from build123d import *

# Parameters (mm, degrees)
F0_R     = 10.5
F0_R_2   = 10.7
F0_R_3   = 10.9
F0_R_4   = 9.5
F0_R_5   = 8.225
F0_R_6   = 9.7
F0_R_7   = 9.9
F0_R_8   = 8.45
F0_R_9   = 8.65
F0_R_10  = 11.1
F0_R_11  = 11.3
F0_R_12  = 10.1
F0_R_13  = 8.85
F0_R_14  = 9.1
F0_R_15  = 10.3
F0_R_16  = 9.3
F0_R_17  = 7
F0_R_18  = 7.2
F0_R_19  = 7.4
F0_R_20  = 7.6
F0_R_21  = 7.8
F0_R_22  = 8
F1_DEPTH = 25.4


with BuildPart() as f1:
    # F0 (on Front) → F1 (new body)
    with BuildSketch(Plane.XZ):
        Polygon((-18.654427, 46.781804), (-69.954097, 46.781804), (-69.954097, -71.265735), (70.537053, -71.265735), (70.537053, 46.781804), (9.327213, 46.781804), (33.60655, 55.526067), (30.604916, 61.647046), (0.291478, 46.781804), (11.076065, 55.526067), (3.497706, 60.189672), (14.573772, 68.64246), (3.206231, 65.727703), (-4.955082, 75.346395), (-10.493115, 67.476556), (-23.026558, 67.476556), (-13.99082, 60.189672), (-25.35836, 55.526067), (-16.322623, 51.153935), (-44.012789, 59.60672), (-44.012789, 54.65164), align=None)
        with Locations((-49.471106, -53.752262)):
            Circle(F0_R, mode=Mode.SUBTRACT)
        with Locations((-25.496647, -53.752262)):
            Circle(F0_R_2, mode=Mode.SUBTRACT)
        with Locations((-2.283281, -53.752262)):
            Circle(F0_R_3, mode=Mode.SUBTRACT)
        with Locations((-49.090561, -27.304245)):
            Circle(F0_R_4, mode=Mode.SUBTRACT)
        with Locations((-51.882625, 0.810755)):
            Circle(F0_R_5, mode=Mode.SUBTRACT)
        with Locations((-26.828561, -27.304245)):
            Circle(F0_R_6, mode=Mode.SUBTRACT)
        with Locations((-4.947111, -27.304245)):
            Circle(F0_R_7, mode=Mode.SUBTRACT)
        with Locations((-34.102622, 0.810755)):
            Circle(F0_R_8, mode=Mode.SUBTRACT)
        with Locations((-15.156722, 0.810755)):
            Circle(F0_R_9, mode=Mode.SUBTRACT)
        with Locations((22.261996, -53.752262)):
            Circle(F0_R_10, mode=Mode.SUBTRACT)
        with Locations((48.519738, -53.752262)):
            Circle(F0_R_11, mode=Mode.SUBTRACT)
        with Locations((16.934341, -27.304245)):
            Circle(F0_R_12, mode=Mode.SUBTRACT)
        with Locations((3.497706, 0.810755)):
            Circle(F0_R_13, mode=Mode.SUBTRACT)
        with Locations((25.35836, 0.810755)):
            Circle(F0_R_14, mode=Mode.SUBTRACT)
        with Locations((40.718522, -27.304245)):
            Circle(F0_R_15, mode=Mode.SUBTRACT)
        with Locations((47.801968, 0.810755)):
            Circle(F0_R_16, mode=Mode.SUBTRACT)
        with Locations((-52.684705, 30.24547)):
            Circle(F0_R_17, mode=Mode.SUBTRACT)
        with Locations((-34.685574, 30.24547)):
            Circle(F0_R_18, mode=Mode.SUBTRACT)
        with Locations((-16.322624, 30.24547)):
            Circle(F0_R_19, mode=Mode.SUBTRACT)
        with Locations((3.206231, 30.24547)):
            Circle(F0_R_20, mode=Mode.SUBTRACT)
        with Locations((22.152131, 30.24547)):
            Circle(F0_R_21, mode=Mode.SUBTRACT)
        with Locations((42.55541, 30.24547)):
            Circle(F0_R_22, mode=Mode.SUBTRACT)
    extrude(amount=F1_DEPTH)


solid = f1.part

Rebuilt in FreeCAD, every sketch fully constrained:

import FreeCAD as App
import Part
import Sketcher
Q = App.Units.Quantity

doc = App.newDocument("Part")
body = doc.addObject("PartDesign::Body", "Body")

sketch1 = doc.addObject("Sketcher::SketchObject", "Sketch")
body.addObject(sketch1)
sketch1.AttachmentSupport = (doc.XZ_Plane, [""])
sketch1.MapMode = "FlatFace"
sketch1.addGeometry([
    Part.LineSegment(App.Vector(-18.654427, 46.781804, 0), App.Vector(-69.954097, 46.781804, 0)),
    Part.LineSegment(App.Vector(-69.954097, 46.781804, 0), App.Vector(-69.954097, -71.265735, 0)),
    Part.LineSegment(App.Vector(-69.954097, -71.265735, 0), App.Vector(70.537053, -71.265735, 0)),
    Part.LineSegment(App.Vector(70.537053, -71.265735, 0), App.Vector(70.537053, 46.781804, 0)),
    Part.LineSegment(App.Vector(70.537053, 46.781804, 0), App.Vector(9.327213, 46.781804, 0)),
    Part.LineSegment(App.Vector(9.327213, 46.781804, 0), App.Vector(33.60655, 55.526067, 0)),
    Part.LineSegment(App.Vector(33.60655, 55.526067, 0), App.Vector(30.604916, 61.647046, 0)),
    Part.LineSegment(App.Vector(30.604916, 61.647046, 0), App.Vector(0.291478, 46.781804, 0)),
    Part.LineSegment(App.Vector(0.291478, 46.781804, 0), App.Vector(11.076065, 55.526067, 0)),
    Part.LineSegment(App.Vector(11.076065, 55.526067, 0), App.Vector(3.497706, 60.189672, 0)),
    Part.LineSegment(App.Vector(3.497706, 60.189672, 0), App.Vector(14.573772, 68.64246, 0)),
    Part.LineSegment(App.Vector(14.573772, 68.64246, 0), App.Vector(3.206231, 65.727703, 0)),
    Part.LineSegment(App.Vector(3.206231, 65.727703, 0), App.Vector(-4.955082, 75.346395, 0)),
    Part.LineSegment(App.Vector(-4.955082, 75.346395, 0), App.Vector(-10.493115, 67.476556, 0)),
    Part.LineSegment(App.Vector(-10.493115, 67.476556, 0), App.Vector(-23.026558, 67.476556, 0)),
    Part.LineSegment(App.Vector(-23.026558, 67.476556, 0), App.Vector(-13.99082, 60.189672, 0)),
    Part.LineSegment(App.Vector(-13.99082, 60.189672, 0), App.Vector(-25.35836, 55.526067, 0)),
    Part.LineSegment(App.Vector(-25.35836, 55.526067, 0), App.Vector(-16.322623, 51.153935, 0)),
    Part.LineSegment(App.Vector(-16.322623, 51.153935, 0), App.Vector(-44.012789, 59.60672, 0)),
    Part.LineSegment(App.Vector(-44.012789, 59.60672, 0), App.Vector(-44.012789, 54.65164, 0)),
    Part.LineSegment(App.Vector(-44.012789, 54.65164, 0), App.Vector(-18.654427, 46.781804, 0)),
    Part.Circle(App.Vector(-49.471106, -53.752262, 0), App.Vector(0, 0, 1), 10.5),
    Part.Circle(App.Vector(-25.496647, -53.752262, 0), App.Vector(0, 0, 1), 10.7),
    Part.Circle(App.Vector(-2.283281, -53.752262, 0), App.Vector(0, 0, 1), 10.9),
    Part.Circle(App.Vector(-49.090561, -27.304245, 0), App.Vector(0, 0, 1), 9.5),
    Part.Circle(App.Vector(-26.828561, -27.304245, 0), App.Vector(0, 0, 1), 9.7),
    Part.Circle(App.Vector(-4.947111, -27.304245, 0), App.Vector(0, 0, 1), 9.9),
    Part.Circle(App.Vector(22.261996, -53.752262, 0), App.Vector(0, 0, 1), 11.1),
    Part.Circle(App.Vector(48.519738, -53.752262, 0), App.Vector(0, 0, 1), 11.3),
    Part.Circle(App.Vector(16.934341, -27.304245, 0), App.Vector(0, 0, 1), 10.1),
    Part.Circle(App.Vector(40.718522, -27.304245, 0), App.Vector(0, 0, 1), 10.3),
    Part.Circle(App.Vector(-51.882625, 0.810755, 0), App.Vector(0, 0, 1), 8.225),
    Part.Circle(App.Vector(-34.102622, 0.810755, 0), App.Vector(0, 0, 1), 8.45),
    Part.Circle(App.Vector(-15.156722, 0.810755, 0), App.Vector(0, 0, 1), 8.65),
    Part.Circle(App.Vector(-52.684705, 30.24547, 0), App.Vector(0, 0, 1), 7),
    Part.Circle(App.Vector(-34.685574, 30.24547, 0), App.Vector(0, 0, 1), 7.2),
    Part.Circle(App.Vector(-16.322624, 30.24547, 0), App.Vector(0, 0, 1), 7.4),
    Part.Circle(App.Vector(3.497706, 0.810755, 0), App.Vector(0, 0, 1), 8.85),
    Part.Circle(App.Vector(25.35836, 0.810755, 0), App.Vector(0, 0, 1), 9.1),
    Part.Circle(App.Vector(47.801968, 0.810755, 0), App.Vector(0, 0, 1), 9.3),
    Part.Circle(App.Vector(3.206231, 30.24547, 0), App.Vector(0, 0, 1), 7.6),
    Part.Circle(App.Vector(22.152131, 30.24547, 0), App.Vector(0, 0, 1), 7.8),
    Part.Circle(App.Vector(42.55541, 30.24547, 0), App.Vector(0, 0, 1), 8),
], False)
sketch1.addConstraint([
    Sketcher.Constraint("Coincident", 0, 2, 1, 1),
    Sketcher.Constraint("Coincident", 1, 2, 2, 1),
    Sketcher.Constraint("Coincident", 2, 2, 3, 1),
    Sketcher.Constraint("Coincident", 3, 2, 4, 1),
    Sketcher.Constraint("Coincident", 4, 2, 5, 1),
    Sketcher.Constraint("Coincident", 5, 2, 6, 1),
    Sketcher.Constraint("Coincident", 6, 2, 7, 1),
    Sketcher.Constraint("Coincident", 7, 2, 8, 1),
    Sketcher.Constraint("Coincident", 8, 2, 9, 1),
    Sketcher.Constraint("Coincident", 9, 2, 10, 1),
    Sketcher.Constraint("Coincident", 10, 2, 11, 1),
    Sketcher.Constraint("Coincident", 11, 2, 12, 1),
    Sketcher.Constraint("Coincident", 12, 2, 13, 1),
    Sketcher.Constraint("Coincident", 13, 2, 14, 1),
    Sketcher.Constraint("Coincident", 14, 2, 15, 1),
    Sketcher.Constraint("Coincident", 15, 2, 16, 1),
    Sketcher.Constraint("Coincident", 16, 2, 17, 1),
    Sketcher.Constraint("Coincident", 17, 2, 18, 1),
    Sketcher.Constraint("Coincident", 18, 2, 19, 1),
    Sketcher.Constraint("Coincident", 19, 2, 20, 1),
    Sketcher.Constraint("Coincident", 20, 2, 0, 1),
    Sketcher.Constraint("Horizontal", 0),
    Sketcher.Constraint("Vertical", 1),
    Sketcher.Constraint("Horizontal", 2),
    Sketcher.Constraint("Vertical", 3),
    Sketcher.Constraint("Horizontal", 4),
    Sketcher.Constraint("Horizontal", 14),
    Sketcher.Constraint("Vertical", 19),
    Sketcher.Constraint("Perpendicular", 6, 7),
    Sketcher.Constraint("Horizontal", 21, 3, 22, 3),
    Sketcher.Constraint("Horizontal", 22, 3, 23, 3),
    Sketcher.Constraint("Horizontal", 24, 3, 25, 3),
    Sketcher.Constraint("Horizontal", 25, 3, 26, 3),
    Sketcher.Constraint("Horizontal", 23, 3, 27, 3),
    Sketcher.Constraint("Horizontal", 27, 3, 28, 3),
    Sketcher.Constraint("Horizontal", 26, 3, 29, 3),
    Sketcher.Constraint("Horizontal", 29, 3, 30, 3),
    Sketcher.Constraint("Horizontal", 31, 3, 32, 3),
    Sketcher.Constraint("Horizontal", 32, 3, 33, 3),
    Sketcher.Constraint("Horizontal", 34, 3, 35, 3),
    Sketcher.Constraint("Horizontal", 35, 3, 36, 3),
    Sketcher.Constraint("Horizontal", 33, 3, 37, 3),
    Sketcher.Constraint("Horizontal", 37, 3, 38, 3),
    Sketcher.Constraint("Horizontal", 38, 3, 39, 3),
    Sketcher.Constraint("Horizontal", 36, 3, 40, 3),
    Sketcher.Constraint("Horizontal", 40, 3, 41, 3),
    Sketcher.Constraint("Horizontal", 41, 3, 42, 3),
    Sketcher.Constraint("Horizontal", 0, 2, 3, 2),
    Sketcher.Constraint("Horizontal", 4, 2, 7, 2),
    Sketcher.Constraint("Horizontal", 5, 2, 8, 2),
    Sketcher.Constraint("Horizontal", 9, 2, 15, 2),
    Sketcher.Constraint("Horizontal", 8, 2, 16, 2),
    Sketcher.Constraint("Vertical", 37, 3, 9, 2),
    Sketcher.Constraint("Vertical", 40, 3, 11, 2),
    Sketcher.Constraint("Vertical", 36, 3, 17, 2),
    Sketcher.Constraint("Diameter", 21, Q("21 mm")),
    Sketcher.Constraint("Diameter", 24, Q("19 mm")),
    Sketcher.Constraint("Diameter", 34, Q("14 mm")),
    Sketcher.Constraint("Diameter", 42, Q("16 mm")),
    Sketcher.Constraint("Diameter", 22, Q("21.4 mm")),
    Sketcher.Constraint("Diameter", 23, Q("21.8 mm")),
    Sketcher.Constraint("Diameter", 25, Q("19.4 mm")),
    Sketcher.Constraint("Diameter", 26, Q("19.8 mm")),
    Sketcher.Constraint("Diameter", 27, Q("22.2 mm")),
    Sketcher.Constraint("Diameter", 28, Q("22.6 mm")),
    Sketcher.Constraint("Diameter", 29, Q("20.2 mm")),
    Sketcher.Constraint("Diameter", 30, Q("20.6 mm")),
    Sketcher.Constraint("Diameter", 32, Q("16.9 mm")),
    Sketcher.Constraint("Diameter", 33, Q("17.3 mm")),
    Sketcher.Constraint("Diameter", 35, Q("14.4 mm")),
    Sketcher.Constraint("Diameter", 36, Q("14.8 mm")),
    Sketcher.Constraint("Diameter", 37, Q("17.7 mm")),
    Sketcher.Constraint("Diameter", 38, Q("18.2 mm")),
    Sketcher.Constraint("Diameter", 39, Q("18.6 mm")),
    Sketcher.Constraint("Diameter", 40, Q("15.2 mm")),
    Sketcher.Constraint("Diameter", 41, Q("15.6 mm")),
    Sketcher.Constraint("Diameter", 31, Q("16.45 mm")),
    Sketcher.Constraint("DistanceX", 31, 3, 36, 3, Q("35.560001 mm")),
    Sketcher.Constraint("DistanceX", 24, 3, 25, 3, Q("22.262 mm")),
    Sketcher.Constraint("DistanceY", 24, 3, 31, 3, Q("28.115 mm")),
    Sketcher.Constraint("DistanceX", 0, 2, 0, 1, Q("51.29967 mm")),
    Sketcher.Constraint("DistanceX", 2, 1, 2, 2, Q("140.49115 mm")),
    Sketcher.Constraint("DistanceX", 4, 2, 4, 1, Q("61.20984 mm")),
    Sketcher.Constraint("DistanceY", 1, 2, 1, 1, Q("118.047539 mm")),
    Sketcher.Constraint("DistanceY", 19, 2, 19, 1, Q("4.95508 mm")),
    Sketcher.Constraint("DistanceX", 25, 3, 28, 3, Q("75.348299 mm")),
    Sketcher.Constraint("DistanceX", 25, 3, 29, 3, Q("43.762902 mm")),
    Sketcher.Constraint("DistanceX", 32, 3, 33, 3, Q("18.9459 mm")),
    Sketcher.Constraint("DistanceX", 40, 3, 41, 3, Q("18.9459 mm")),
    Sketcher.Constraint("DistanceY", 7, 2, 11, 2, Q("18.945899 mm")),
    Sketcher.Constraint("DistanceX", 16, 2, 14, 2, Q("2.331802 mm")),
    Sketcher.Constraint("DistanceX", 17, 2, 7, 2, Q("16.614101 mm")),
    Sketcher.Constraint("Distance", 7, Q("33.762108 mm")),
    Sketcher.Constraint("Distance", 11, Q("11.73528 mm")),
    Sketcher.Constraint("DistanceX", 14, 2, 14, 1, Q("12.533443 mm")),
    Sketcher.Constraint("DistanceX", 23, 3, -1, 1, Q("2.283281 mm")),
    Sketcher.Constraint("DistanceX", 24, 3, -1, 1, Q("49.090561 mm")),
    Sketcher.Constraint("DistanceX", 26, 3, -1, 1, Q("4.947111 mm")),
    Sketcher.Constraint("DistanceX", 32, 3, -1, 1, Q("34.102622 mm")),
    Sketcher.Constraint("DistanceY", -1, 1, 34, 3, Q("30.24547 mm")),
    Sketcher.Constraint("DistanceX", -1, 1, 38, 3, Q("25.35836 mm")),
    Sketcher.Constraint("DistanceX", -1, 1, 39, 3, Q("47.801968 mm")),
    Sketcher.Constraint("DistanceX", -1, 1, 40, 3, Q("3.206231 mm")),
    Sketcher.Constraint("DistanceX", -1, 1, 42, 3, Q("42.55541 mm")),
    Sketcher.Constraint("DistanceX", -1, 1, 5, 2, Q("33.60655 mm")),
    Sketcher.Constraint("DistanceY", -1, 1, 10, 2, Q("68.64246 mm")),
    Sketcher.Constraint("DistanceX", 14, 2, -1, 1, Q("23.026558 mm")),
    Sketcher.Constraint("DistanceX", 15, 2, -1, 1, Q("13.99082 mm")),
    Sketcher.Constraint("DistanceX", 18, 2, -1, 1, Q("44.012789 mm")),
    Sketcher.Constraint("DistanceY", -1, 1, 18, 2, Q("59.60672 mm")),
    Sketcher.Constraint("DistanceX", 21, 3, 22, 3, Q("23.974459 mm")),
    Sketcher.Constraint("DistanceX", 27, 3, 28, 3, Q("26.257742 mm")),
    Sketcher.Constraint("DistanceX", 29, 3, 30, 3, Q("23.784181 mm")),
    Sketcher.Constraint("DistanceX", 31, 3, 21, 3, Q("2.411519 mm")),
    Sketcher.Constraint("DistanceX", 34, 3, 31, 3, Q("0.80208 mm")),
    Sketcher.Constraint("DistanceX", 34, 3, 35, 3, Q("17.999131 mm")),
    Sketcher.Constraint("DistanceX", 36, 3, 37, 3, Q("19.82033 mm")),
    Sketcher.Constraint("DistanceY", 31, 3, 0, 2, Q("45.971049 mm")),
    Sketcher.Constraint("DistanceX", 1, 2, 21, 3, Q("20.482991 mm")),
    Sketcher.Constraint("DistanceX", 30, 3, 2, 2, Q("29.818531 mm")),
    Sketcher.Constraint("DistanceY", 5, 2, 6, 2, Q("6.120979 mm")),
    Sketcher.Constraint("DistanceX", 4, 2, 8, 2, Q("1.748852 mm")),
    Sketcher.Constraint("DistanceX", 4, 2, 10, 2, Q("5.246559 mm")),
    Sketcher.Constraint("DistanceY", 9, 2, 11, 2, Q("5.538031 mm")),
    Sketcher.Constraint("DistanceY", 11, 2, 12, 2, Q("9.618692 mm")),
    Sketcher.Constraint("DistanceX", 12, 2, 7, 2, Q("5.24656 mm")),
    Sketcher.Constraint("DistanceY", 13, 2, 12, 2, Q("7.869839 mm")),
    Sketcher.Constraint("DistanceY", 7, 2, 17, 2, Q("4.372131 mm")),
    Sketcher.Constraint("DistanceY", 21, 3, -1, 1, Q("53.752262 mm")),
])
pad1 = doc.addObject("PartDesign::Pad", "Pad")
body.addObject(pad1)
pad1.Profile = sketch1
pad1.Length = 25.4

doc.recompute()
